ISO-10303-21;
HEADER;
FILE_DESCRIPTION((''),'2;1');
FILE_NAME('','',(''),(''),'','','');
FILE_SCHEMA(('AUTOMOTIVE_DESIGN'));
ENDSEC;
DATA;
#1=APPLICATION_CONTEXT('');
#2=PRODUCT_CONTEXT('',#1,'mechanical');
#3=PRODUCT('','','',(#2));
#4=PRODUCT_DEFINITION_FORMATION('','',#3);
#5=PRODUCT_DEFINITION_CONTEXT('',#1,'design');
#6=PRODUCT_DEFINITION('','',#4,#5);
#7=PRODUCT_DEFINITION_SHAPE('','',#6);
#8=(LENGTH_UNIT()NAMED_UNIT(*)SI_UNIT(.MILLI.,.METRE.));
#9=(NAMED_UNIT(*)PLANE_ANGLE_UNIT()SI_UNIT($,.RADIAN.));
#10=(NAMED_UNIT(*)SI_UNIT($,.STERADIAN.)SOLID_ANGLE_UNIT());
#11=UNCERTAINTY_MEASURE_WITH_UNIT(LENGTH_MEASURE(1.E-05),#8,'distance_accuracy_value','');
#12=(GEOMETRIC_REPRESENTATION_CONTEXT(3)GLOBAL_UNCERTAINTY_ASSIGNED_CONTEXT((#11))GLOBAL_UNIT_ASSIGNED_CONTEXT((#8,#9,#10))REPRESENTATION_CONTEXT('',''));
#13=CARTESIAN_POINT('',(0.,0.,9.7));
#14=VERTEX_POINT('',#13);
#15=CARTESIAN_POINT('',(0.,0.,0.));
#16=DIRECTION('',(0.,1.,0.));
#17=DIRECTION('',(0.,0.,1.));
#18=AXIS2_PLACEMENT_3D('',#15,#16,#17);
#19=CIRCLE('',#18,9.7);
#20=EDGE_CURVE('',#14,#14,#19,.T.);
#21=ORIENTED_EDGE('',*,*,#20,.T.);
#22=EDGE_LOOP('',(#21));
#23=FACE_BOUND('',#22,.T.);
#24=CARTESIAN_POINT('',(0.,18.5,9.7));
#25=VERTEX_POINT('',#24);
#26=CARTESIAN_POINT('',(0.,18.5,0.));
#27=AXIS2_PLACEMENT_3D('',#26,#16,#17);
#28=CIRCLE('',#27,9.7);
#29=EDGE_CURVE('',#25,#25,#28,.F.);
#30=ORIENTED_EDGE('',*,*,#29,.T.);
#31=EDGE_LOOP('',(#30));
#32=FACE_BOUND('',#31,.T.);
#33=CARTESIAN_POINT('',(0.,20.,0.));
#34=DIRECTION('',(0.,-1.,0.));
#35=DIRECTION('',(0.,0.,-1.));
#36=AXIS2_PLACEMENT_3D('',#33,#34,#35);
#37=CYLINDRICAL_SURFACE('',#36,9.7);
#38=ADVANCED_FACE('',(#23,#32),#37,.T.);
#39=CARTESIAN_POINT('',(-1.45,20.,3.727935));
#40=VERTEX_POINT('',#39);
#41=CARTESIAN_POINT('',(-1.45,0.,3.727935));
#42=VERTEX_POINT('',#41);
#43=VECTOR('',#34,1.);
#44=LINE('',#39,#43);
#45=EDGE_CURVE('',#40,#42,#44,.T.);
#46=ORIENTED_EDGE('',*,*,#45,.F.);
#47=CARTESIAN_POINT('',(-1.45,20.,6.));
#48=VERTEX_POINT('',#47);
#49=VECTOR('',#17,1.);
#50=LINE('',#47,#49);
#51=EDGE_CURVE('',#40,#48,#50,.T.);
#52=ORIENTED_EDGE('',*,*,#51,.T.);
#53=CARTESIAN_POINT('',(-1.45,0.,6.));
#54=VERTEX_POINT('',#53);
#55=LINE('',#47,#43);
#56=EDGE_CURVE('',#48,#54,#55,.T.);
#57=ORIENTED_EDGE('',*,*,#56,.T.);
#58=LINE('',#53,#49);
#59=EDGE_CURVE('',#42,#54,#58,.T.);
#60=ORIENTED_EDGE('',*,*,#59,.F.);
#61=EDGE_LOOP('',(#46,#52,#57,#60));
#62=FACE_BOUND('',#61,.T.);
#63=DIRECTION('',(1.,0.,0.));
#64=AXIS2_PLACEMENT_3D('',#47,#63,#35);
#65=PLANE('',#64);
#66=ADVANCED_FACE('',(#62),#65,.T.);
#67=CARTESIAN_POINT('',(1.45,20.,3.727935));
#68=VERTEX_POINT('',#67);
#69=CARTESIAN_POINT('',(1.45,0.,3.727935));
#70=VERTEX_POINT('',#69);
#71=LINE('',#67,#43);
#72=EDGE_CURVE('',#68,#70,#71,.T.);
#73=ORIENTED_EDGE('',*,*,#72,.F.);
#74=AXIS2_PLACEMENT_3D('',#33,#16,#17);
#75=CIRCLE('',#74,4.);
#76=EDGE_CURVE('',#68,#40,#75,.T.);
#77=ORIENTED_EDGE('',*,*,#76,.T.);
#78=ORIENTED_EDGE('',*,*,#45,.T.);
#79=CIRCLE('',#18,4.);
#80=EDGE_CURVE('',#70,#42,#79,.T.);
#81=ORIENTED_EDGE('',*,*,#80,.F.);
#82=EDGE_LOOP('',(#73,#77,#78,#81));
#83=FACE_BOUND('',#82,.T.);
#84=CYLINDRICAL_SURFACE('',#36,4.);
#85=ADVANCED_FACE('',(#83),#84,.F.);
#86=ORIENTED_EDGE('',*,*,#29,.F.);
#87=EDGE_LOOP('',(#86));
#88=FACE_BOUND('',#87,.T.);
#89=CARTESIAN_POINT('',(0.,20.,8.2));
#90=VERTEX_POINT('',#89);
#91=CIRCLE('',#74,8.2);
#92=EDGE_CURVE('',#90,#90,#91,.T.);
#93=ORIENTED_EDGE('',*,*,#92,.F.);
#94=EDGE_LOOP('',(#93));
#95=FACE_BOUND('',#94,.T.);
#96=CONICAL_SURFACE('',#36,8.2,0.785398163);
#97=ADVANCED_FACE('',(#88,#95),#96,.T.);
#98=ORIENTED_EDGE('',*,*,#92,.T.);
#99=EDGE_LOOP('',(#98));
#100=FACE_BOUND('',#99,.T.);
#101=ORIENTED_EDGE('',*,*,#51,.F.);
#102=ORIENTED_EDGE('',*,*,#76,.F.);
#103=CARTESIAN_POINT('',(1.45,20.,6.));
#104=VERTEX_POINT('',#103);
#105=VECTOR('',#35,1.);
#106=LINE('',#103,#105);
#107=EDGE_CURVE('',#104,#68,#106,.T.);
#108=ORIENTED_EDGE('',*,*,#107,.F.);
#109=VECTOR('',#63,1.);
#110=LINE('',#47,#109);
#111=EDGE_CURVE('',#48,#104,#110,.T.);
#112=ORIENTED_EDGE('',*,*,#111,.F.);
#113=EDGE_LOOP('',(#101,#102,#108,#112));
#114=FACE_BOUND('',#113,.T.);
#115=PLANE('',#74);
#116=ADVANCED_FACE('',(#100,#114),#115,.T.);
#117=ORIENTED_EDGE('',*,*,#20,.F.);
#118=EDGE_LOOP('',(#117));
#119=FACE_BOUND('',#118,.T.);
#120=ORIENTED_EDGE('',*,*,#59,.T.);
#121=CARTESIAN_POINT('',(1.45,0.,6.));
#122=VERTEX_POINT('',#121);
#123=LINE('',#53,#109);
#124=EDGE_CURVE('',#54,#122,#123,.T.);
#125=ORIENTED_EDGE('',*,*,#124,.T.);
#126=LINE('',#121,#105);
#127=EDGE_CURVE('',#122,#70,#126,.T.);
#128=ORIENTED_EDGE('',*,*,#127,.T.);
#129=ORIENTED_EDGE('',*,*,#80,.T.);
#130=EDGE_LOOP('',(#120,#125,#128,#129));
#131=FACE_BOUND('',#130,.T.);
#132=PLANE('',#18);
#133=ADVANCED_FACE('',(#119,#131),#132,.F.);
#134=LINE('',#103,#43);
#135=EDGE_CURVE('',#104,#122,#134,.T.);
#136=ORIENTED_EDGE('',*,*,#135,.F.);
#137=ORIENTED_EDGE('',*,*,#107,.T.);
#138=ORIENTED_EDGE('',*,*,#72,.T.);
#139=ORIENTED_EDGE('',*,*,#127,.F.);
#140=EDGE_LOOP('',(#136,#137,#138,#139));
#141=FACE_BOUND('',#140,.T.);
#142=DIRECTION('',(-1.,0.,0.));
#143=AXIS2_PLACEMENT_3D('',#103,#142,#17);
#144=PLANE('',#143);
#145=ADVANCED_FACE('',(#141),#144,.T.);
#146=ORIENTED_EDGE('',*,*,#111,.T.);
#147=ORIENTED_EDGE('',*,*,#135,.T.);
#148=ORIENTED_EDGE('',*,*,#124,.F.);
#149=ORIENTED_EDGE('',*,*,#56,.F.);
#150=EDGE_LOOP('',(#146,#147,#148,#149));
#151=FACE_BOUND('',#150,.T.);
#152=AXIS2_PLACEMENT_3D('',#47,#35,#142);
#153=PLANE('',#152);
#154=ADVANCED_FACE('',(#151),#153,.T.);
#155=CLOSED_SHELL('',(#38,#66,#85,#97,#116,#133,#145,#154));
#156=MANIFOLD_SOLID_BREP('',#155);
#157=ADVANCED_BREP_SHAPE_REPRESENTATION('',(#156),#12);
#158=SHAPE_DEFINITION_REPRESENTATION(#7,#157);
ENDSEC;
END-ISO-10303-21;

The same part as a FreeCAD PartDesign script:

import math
import FreeCAD as App
import Part
import Sketcher


def edges_at(feature, points):
    """Names of the edges that pass closest to the given points."""
    edges = feature.Shape.Edges
    near = lambda p: min(range(len(edges)), key=lambda i: edges[i].distToShape(Part.Vertex(*p))[0])
    return sorted({f"Edge{near(p) + 1}" for p in points})

doc = App.newDocument("Part")
body = doc.addObject("PartDesign::Body", "Body")

sketch1 = body.newObject("Sketcher::SketchObject", "Sketch")
sketch1.AttachmentSupport = (doc.getObject("XZ_Plane"), [""])
sketch1.MapMode = "FlatFace"
sketch1.addGeometry(Part.Circle(App.Vector(0, 0, 0), App.Vector(0, 0, 1), 9.7), False)
sketch1.addGeometry(Part.LineSegment(App.Vector(1.45, 6, 0), App.Vector(-1.45, 6, 0)), False)
sketch1.addGeometry(Part.LineSegment(App.Vector(-1.45, 6, 0), App.Vector(-1.45, 3.727935, 0)), False)
sketch1.addGeometry(Part.ArcOfCircle(Part.Circle(App.Vector(0, 0, 0), App.Vector(0, 0, 1), 4), math.radians(111.253809), math.radians(428.746191)), False)
sketch1.addGeometry(Part.LineSegment(App.Vector(1.45, 3.727935, 0), App.Vector(1.45, 6, 0)), False)
sketch1.addConstraint(Sketcher.Constraint("Coincident", 1, 2, 2, 1))
sketch1.addConstraint(Sketcher.Constraint("Coincident", 2, 2, 3, 1))
sketch1.addConstraint(Sketcher.Constraint("Coincident", 3, 2, 4, 1))
sketch1.addConstraint(Sketcher.Constraint("Coincident", 4, 2, 1, 1))
sketch1.addConstraint(Sketcher.Constraint("Horizontal", 1))
sketch1.addConstraint(Sketcher.Constraint("Vertical", 2))
sketch1.addConstraint(Sketcher.Constraint("Vertical", 4))
sketch1.addConstraint(Sketcher.Constraint("Coincident", 0, 3, -1, 1))
sketch1.addConstraint(Sketcher.Constraint("Coincident", 3, 3, -1, 1))
sketch1.addConstraint(Sketcher.Constraint("Horizontal", 2, 2, 3, 2))
sketch1.addConstraint(Sketcher.Constraint("Radius", 3, 4.0))
sketch1.addConstraint(Sketcher.Constraint("Diameter", 0, 19.4))
sketch1.addConstraint(Sketcher.Constraint("DistanceX", 1, 2, 1, 1, 2.9))
sketch1.addConstraint(Sketcher.Constraint("DistanceY", -1, 1, 1, 2, 6.0))
pad1 = body.newObject("PartDesign::Pad", "Pad")
pad1.Profile = sketch1
pad1.Length = 20
pad1.Reversed = True
doc.recompute()

chamfer = body.newObject("PartDesign::Chamfer", "Chamfer")
chamfer.Base = (pad1, edges_at(pad1, [(0, 20, -9.7)]))
chamfer.Size = 1.5

doc.recompute()
